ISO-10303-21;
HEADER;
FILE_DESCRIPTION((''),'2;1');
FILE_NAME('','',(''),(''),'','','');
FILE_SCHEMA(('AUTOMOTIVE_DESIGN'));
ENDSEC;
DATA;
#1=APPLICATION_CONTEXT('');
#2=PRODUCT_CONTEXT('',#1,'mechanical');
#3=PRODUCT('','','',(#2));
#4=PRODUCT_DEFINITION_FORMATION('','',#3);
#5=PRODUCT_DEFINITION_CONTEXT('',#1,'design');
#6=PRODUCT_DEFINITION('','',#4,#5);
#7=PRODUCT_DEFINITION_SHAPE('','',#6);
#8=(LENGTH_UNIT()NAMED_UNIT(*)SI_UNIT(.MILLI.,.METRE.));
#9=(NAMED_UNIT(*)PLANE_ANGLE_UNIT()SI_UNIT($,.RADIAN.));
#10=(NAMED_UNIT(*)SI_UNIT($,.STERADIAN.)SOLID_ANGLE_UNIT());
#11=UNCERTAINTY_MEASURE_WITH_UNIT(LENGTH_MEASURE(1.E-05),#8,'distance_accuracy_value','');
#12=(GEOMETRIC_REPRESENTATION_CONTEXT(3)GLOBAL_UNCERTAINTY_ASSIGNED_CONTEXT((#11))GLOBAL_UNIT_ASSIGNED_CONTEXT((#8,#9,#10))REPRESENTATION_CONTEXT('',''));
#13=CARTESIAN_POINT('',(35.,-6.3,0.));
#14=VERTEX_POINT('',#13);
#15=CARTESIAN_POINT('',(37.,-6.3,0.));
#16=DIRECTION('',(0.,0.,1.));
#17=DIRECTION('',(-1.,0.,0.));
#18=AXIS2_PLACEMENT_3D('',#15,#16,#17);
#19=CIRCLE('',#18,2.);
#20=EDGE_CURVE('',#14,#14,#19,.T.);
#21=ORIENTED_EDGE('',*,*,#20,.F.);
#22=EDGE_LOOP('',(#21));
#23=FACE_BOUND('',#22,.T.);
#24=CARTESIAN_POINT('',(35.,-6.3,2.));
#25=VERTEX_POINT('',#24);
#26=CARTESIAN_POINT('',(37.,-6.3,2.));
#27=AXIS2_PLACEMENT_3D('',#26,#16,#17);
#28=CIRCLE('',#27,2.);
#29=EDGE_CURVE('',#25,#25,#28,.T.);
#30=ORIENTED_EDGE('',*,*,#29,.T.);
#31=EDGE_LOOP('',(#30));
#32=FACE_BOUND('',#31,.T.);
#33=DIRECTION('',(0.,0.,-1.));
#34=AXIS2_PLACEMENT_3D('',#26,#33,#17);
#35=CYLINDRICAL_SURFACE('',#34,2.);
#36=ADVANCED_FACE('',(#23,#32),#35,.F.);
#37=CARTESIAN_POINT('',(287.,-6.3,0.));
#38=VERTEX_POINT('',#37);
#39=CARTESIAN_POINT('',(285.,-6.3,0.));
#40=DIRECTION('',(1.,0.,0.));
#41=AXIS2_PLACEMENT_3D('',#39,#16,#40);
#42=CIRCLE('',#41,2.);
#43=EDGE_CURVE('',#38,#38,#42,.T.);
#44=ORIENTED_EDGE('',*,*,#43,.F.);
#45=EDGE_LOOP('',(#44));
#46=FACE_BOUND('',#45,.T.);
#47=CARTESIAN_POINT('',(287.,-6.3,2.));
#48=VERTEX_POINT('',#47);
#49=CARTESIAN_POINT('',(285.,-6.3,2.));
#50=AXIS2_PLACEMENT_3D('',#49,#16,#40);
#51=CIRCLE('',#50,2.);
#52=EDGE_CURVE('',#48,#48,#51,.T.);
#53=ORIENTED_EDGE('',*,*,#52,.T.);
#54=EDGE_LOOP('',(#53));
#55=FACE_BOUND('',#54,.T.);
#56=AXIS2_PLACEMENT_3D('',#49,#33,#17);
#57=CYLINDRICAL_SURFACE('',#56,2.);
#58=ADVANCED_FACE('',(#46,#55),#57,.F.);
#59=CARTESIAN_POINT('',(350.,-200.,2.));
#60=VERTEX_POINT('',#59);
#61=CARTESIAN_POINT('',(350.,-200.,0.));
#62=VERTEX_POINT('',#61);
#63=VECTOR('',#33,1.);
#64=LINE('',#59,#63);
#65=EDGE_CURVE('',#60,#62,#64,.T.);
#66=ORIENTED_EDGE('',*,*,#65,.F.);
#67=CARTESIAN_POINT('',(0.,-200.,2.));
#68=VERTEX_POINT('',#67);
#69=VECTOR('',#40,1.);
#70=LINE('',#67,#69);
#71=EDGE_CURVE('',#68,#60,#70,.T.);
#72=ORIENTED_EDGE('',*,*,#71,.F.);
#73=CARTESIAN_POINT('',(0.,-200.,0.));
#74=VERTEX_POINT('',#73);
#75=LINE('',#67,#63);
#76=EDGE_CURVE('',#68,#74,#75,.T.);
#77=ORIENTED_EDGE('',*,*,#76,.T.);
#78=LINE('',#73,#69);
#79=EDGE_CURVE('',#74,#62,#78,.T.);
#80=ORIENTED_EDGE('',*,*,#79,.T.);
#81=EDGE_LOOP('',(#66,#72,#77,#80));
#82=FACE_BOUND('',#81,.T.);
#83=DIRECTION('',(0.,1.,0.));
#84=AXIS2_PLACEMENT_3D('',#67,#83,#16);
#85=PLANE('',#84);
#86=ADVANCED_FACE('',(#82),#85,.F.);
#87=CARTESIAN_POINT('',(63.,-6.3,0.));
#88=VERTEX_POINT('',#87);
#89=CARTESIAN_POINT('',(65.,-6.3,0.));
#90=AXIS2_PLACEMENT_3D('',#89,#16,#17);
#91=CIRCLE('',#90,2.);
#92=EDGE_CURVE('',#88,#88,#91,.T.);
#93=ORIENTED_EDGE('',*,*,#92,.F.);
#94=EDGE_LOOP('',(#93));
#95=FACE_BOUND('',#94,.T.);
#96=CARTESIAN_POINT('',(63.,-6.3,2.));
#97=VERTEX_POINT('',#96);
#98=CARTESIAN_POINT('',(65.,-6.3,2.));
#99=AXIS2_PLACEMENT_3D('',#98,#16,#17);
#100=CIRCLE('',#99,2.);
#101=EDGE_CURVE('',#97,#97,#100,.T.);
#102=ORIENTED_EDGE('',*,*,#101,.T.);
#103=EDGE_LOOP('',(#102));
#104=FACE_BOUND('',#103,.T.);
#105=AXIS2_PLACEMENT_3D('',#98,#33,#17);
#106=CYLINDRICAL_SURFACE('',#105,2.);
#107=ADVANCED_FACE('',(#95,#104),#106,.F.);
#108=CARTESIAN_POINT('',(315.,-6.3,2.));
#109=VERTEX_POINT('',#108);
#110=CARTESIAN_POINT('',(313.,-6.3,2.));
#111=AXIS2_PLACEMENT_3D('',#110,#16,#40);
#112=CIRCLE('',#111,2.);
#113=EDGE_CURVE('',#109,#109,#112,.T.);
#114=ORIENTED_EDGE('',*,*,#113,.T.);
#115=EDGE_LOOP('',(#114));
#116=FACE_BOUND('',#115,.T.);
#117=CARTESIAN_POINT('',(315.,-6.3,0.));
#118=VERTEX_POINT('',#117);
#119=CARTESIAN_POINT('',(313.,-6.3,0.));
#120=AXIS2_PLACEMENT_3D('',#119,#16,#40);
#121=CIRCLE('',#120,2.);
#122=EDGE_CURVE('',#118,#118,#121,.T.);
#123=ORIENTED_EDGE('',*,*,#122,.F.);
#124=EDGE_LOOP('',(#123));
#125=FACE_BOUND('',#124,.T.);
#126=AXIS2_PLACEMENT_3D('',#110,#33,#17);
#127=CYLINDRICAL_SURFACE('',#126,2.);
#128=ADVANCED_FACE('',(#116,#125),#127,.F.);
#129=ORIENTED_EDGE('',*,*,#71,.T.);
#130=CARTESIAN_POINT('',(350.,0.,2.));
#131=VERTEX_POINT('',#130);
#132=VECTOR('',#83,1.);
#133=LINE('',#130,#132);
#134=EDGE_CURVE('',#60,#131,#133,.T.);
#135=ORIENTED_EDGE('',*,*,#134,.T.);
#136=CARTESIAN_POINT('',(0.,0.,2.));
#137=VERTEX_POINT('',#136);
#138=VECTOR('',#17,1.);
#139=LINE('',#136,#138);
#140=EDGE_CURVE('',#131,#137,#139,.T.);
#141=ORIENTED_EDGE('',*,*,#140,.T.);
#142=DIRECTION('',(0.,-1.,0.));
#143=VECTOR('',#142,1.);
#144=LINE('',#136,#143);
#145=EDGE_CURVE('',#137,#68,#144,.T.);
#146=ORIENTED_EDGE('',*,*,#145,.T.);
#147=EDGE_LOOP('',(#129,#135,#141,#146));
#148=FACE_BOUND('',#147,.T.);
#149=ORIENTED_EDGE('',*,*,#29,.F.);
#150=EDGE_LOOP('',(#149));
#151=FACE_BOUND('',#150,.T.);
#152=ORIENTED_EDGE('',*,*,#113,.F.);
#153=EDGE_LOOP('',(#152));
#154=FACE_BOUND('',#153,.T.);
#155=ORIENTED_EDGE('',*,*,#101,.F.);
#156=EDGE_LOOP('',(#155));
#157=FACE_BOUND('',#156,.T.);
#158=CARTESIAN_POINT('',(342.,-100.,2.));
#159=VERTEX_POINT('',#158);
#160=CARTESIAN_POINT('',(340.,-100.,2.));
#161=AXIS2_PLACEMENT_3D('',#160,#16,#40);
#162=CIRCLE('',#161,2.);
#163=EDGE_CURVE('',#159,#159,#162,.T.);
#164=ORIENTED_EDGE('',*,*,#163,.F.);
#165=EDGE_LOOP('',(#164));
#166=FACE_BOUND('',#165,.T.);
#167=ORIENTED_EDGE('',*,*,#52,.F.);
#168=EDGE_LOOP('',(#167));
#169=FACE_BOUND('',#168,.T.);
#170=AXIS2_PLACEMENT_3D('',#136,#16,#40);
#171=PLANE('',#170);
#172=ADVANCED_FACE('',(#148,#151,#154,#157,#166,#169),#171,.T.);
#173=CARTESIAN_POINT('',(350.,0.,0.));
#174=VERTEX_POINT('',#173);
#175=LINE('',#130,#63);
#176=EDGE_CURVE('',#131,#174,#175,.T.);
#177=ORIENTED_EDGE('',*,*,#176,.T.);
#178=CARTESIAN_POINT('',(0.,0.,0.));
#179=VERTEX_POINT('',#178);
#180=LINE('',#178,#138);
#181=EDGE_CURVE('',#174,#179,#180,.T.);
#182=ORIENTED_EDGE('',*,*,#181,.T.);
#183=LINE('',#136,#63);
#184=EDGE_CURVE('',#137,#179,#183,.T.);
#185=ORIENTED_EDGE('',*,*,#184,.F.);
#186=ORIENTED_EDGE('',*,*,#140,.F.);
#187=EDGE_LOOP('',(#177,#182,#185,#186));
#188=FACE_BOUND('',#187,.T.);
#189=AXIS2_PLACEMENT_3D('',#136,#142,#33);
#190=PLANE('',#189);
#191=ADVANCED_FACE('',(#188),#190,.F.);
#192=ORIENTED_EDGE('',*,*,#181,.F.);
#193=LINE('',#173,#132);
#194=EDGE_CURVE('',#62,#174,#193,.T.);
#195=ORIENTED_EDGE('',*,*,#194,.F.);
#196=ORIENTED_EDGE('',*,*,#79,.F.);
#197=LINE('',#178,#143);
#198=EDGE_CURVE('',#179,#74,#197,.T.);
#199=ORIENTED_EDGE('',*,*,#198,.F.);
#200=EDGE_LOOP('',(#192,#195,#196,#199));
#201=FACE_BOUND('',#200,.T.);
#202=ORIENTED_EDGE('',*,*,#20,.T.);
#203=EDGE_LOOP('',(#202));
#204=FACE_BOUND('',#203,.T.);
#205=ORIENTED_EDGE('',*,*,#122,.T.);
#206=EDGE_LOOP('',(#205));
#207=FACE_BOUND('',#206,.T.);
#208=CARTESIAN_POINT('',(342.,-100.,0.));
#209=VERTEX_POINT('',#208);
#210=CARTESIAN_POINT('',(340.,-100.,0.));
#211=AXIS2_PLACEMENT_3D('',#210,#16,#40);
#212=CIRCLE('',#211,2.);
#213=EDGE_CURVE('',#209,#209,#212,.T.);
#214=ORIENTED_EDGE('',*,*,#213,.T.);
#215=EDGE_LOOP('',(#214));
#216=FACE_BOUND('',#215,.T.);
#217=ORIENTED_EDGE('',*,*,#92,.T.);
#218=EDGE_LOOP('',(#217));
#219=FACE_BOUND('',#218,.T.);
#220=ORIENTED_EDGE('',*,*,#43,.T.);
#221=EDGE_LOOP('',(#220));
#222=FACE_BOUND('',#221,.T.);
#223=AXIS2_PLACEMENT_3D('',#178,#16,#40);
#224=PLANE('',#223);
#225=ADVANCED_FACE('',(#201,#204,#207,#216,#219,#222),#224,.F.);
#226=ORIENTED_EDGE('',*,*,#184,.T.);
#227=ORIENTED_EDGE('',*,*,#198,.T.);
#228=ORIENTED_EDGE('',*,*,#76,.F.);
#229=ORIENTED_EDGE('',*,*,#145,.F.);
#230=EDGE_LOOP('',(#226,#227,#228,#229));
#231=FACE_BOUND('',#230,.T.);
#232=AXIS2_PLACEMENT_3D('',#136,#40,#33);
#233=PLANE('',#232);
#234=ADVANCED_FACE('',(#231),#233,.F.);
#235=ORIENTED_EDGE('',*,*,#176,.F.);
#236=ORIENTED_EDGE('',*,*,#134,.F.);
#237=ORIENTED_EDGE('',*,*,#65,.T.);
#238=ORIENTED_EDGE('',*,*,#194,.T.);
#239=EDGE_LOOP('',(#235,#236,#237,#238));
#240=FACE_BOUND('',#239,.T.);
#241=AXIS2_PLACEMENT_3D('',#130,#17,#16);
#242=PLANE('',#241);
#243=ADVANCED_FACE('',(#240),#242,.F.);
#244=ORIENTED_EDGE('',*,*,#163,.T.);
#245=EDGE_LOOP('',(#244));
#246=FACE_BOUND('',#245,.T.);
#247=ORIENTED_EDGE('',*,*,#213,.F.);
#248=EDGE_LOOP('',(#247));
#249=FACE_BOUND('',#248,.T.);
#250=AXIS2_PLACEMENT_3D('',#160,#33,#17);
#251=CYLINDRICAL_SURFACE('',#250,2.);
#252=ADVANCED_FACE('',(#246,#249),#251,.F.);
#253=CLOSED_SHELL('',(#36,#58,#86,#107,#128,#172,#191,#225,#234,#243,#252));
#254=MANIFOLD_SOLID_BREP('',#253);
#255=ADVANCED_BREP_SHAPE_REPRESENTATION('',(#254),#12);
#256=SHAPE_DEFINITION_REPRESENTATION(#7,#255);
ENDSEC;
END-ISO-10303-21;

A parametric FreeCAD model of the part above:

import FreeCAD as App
import Part
import Sketcher

V = App.Vector
Q = App.Units.Quantity

doc = App.newDocument("Part")
body = doc.addObject("PartDesign::Body", "Body")

# Sketch on XY plane
sketch1 = body.newObject("Sketcher::SketchObject", "Sketch")
sketch1.AttachmentSupport = (doc.getObject("XY_Plane"), [""])
sketch1.MapMode = "FlatFace"
sketch1.addGeometry(Part.LineSegment(V(0, 0, 0), V(0, -200, 0)), False)
sketch1.addGeometry(Part.LineSegment(V(0, -200, 0), V(350, -200, 0)), False)
sketch1.addGeometry(Part.LineSegment(V(350, -200, 0), V(350, 0, 0)), False)
sketch1.addGeometry(Part.LineSegment(V(350, 0, 0), V(0, 0, 0)), False)
sketch1.addGeometry(Part.Circle(V(340, -100, 0), V(0, 0, 1), 2), False)
sketch1.addGeometry(Part.Circle(V(37, -6.3, 0), V(0, 0, 1), 2), False)
sketch1.addGeometry(Part.Circle(V(65, -6.3, 0), V(0, 0, 1), 2), False)
sketch1.addGeometry(Part.Circle(V(285, -6.3, 0), V(0, 0, 1), 2), False)
sketch1.addGeometry(Part.Circle(V(313, -6.3, 0), V(0, 0, 1), 2), False)
sketch1.addConstraint(Sketcher.Constraint("Coincident", 0, 2, 1, 1))
sketch1.addConstraint(Sketcher.Constraint("Coincident", 1, 2, 2, 1))
sketch1.addConstraint(Sketcher.Constraint("Coincident", 2, 2, 3, 1))
sketch1.addConstraint(Sketcher.Constraint("Coincident", 3, 2, 0, 1))
sketch1.addConstraint(Sketcher.Constraint("Vertical", 0))
sketch1.addConstraint(Sketcher.Constraint("Horizontal", 1))
sketch1.addConstraint(Sketcher.Constraint("Vertical", 2))
sketch1.addConstraint(Sketcher.Constraint("Horizontal", 3))
sketch1.addConstraint(Sketcher.Constraint("Coincident", 3, 2, -1, 1))
sketch1.addConstraint(Sketcher.Constraint("Equal", 4, 5))
sketch1.addConstraint(Sketcher.Constraint("Equal", 5, 6))
sketch1.addConstraint(Sketcher.Constraint("Equal", 6, 7))
sketch1.addConstraint(Sketcher.Constraint("Equal", 7, 8))
sketch1.addConstraint(Sketcher.Constraint("Horizontal", 5, 3, 6, 3))
sketch1.addConstraint(Sketcher.Constraint("Horizontal", 6, 3, 7, 3))
sketch1.addConstraint(Sketcher.Constraint("Horizontal", 7, 3, 8, 3))
sketch1.addConstraint(Sketcher.Constraint("Diameter", 4, Q("4 mm")))
sketch1.addConstraint(Sketcher.Constraint("DistanceX", 1, 1, 1, 2, Q("350 mm")))
sketch1.addConstraint(Sketcher.Constraint("DistanceY", 0, 2, 0, 1, Q("200 mm")))
sketch1.addConstraint(Sketcher.Constraint("DistanceX", -1, 1, 4, 3, Q("340 mm")))
sketch1.addConstraint(Sketcher.Constraint("DistanceY", 4, 3, -1, 1, Q("100 mm")))
sketch1.addConstraint(Sketcher.Constraint("DistanceX", -1, 1, 5, 3, Q("37 mm")))
sketch1.addConstraint(Sketcher.Constraint("DistanceX", -1, 1, 6, 3, Q("65 mm")))
sketch1.addConstraint(Sketcher.Constraint("DistanceX", -1, 1, 7, 3, Q("285 mm")))
sketch1.addConstraint(Sketcher.Constraint("DistanceX", -1, 1, 8, 3, Q("313 mm")))
sketch1.addConstraint(Sketcher.Constraint("DistanceY", 5, 3, -1, 1, Q("6.3 mm")))
pad1 = body.newObject("PartDesign::Pad", "Pad")
pad1.Profile = sketch1
pad1.Length = 2

doc.recompute()
